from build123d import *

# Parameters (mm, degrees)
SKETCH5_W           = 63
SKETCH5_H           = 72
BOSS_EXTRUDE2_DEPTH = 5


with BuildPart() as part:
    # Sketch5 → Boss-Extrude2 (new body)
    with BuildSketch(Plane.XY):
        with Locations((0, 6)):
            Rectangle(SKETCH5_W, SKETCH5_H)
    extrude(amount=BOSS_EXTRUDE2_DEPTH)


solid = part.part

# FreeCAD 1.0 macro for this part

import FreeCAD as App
import Part
import Sketcher


def add_polygon(sketch, points):
    """Adds a closed chain of lines whose ends are joined by coincident constraints."""
    first, n = sketch.GeometryCount, len(points)
    for a, b in zip(points, points[1:] + points[:1]):
        sketch.addGeometry(Part.LineSegment(App.Vector(*a, 0), App.Vector(*b, 0)), False)
    for i in range(n):
        sketch.addConstraint(Sketcher.Constraint("Coincident", first + i, 2, first + (i + 1) % n, 1))

doc = App.newDocument("Part")
body = doc.addObject("PartDesign::Body", "Body")

sketch1 = body.newObject("Sketcher::SketchObject", "Sketch")
sketch1.AttachmentSupport = (doc.getObject("XY_Plane"), [""])
sketch1.MapMode = "FlatFace"
add_polygon(sketch1, [(-32, 42), (-32, -30), (32, -30), (32, 42)])
sketch1.addConstraint([
    Sketcher.Constraint("Vertical", 0),
    Sketcher.Constraint("Horizontal", 1),
    Sketcher.Constraint("Vertical", 2),
    Sketcher.Constraint("Horizontal", 3),
    Sketcher.Constraint("DistanceX", 1, 1, 1, 2, 63.0),
    Sketcher.Constraint("DistanceY", 0, 2, 0, 1, 72.0),
    Sketcher.Constraint("DistanceY", 0, 2, -1, 1, 30.0),
    Sketcher.Constraint("DistanceX", 0, 2, -1, 1, 31.5),
])
pad1 = body.newObject("PartDesign::Pad", "Pad")
pad1.Profile = sketch1
pad1.Length = 5

doc.recompute()
